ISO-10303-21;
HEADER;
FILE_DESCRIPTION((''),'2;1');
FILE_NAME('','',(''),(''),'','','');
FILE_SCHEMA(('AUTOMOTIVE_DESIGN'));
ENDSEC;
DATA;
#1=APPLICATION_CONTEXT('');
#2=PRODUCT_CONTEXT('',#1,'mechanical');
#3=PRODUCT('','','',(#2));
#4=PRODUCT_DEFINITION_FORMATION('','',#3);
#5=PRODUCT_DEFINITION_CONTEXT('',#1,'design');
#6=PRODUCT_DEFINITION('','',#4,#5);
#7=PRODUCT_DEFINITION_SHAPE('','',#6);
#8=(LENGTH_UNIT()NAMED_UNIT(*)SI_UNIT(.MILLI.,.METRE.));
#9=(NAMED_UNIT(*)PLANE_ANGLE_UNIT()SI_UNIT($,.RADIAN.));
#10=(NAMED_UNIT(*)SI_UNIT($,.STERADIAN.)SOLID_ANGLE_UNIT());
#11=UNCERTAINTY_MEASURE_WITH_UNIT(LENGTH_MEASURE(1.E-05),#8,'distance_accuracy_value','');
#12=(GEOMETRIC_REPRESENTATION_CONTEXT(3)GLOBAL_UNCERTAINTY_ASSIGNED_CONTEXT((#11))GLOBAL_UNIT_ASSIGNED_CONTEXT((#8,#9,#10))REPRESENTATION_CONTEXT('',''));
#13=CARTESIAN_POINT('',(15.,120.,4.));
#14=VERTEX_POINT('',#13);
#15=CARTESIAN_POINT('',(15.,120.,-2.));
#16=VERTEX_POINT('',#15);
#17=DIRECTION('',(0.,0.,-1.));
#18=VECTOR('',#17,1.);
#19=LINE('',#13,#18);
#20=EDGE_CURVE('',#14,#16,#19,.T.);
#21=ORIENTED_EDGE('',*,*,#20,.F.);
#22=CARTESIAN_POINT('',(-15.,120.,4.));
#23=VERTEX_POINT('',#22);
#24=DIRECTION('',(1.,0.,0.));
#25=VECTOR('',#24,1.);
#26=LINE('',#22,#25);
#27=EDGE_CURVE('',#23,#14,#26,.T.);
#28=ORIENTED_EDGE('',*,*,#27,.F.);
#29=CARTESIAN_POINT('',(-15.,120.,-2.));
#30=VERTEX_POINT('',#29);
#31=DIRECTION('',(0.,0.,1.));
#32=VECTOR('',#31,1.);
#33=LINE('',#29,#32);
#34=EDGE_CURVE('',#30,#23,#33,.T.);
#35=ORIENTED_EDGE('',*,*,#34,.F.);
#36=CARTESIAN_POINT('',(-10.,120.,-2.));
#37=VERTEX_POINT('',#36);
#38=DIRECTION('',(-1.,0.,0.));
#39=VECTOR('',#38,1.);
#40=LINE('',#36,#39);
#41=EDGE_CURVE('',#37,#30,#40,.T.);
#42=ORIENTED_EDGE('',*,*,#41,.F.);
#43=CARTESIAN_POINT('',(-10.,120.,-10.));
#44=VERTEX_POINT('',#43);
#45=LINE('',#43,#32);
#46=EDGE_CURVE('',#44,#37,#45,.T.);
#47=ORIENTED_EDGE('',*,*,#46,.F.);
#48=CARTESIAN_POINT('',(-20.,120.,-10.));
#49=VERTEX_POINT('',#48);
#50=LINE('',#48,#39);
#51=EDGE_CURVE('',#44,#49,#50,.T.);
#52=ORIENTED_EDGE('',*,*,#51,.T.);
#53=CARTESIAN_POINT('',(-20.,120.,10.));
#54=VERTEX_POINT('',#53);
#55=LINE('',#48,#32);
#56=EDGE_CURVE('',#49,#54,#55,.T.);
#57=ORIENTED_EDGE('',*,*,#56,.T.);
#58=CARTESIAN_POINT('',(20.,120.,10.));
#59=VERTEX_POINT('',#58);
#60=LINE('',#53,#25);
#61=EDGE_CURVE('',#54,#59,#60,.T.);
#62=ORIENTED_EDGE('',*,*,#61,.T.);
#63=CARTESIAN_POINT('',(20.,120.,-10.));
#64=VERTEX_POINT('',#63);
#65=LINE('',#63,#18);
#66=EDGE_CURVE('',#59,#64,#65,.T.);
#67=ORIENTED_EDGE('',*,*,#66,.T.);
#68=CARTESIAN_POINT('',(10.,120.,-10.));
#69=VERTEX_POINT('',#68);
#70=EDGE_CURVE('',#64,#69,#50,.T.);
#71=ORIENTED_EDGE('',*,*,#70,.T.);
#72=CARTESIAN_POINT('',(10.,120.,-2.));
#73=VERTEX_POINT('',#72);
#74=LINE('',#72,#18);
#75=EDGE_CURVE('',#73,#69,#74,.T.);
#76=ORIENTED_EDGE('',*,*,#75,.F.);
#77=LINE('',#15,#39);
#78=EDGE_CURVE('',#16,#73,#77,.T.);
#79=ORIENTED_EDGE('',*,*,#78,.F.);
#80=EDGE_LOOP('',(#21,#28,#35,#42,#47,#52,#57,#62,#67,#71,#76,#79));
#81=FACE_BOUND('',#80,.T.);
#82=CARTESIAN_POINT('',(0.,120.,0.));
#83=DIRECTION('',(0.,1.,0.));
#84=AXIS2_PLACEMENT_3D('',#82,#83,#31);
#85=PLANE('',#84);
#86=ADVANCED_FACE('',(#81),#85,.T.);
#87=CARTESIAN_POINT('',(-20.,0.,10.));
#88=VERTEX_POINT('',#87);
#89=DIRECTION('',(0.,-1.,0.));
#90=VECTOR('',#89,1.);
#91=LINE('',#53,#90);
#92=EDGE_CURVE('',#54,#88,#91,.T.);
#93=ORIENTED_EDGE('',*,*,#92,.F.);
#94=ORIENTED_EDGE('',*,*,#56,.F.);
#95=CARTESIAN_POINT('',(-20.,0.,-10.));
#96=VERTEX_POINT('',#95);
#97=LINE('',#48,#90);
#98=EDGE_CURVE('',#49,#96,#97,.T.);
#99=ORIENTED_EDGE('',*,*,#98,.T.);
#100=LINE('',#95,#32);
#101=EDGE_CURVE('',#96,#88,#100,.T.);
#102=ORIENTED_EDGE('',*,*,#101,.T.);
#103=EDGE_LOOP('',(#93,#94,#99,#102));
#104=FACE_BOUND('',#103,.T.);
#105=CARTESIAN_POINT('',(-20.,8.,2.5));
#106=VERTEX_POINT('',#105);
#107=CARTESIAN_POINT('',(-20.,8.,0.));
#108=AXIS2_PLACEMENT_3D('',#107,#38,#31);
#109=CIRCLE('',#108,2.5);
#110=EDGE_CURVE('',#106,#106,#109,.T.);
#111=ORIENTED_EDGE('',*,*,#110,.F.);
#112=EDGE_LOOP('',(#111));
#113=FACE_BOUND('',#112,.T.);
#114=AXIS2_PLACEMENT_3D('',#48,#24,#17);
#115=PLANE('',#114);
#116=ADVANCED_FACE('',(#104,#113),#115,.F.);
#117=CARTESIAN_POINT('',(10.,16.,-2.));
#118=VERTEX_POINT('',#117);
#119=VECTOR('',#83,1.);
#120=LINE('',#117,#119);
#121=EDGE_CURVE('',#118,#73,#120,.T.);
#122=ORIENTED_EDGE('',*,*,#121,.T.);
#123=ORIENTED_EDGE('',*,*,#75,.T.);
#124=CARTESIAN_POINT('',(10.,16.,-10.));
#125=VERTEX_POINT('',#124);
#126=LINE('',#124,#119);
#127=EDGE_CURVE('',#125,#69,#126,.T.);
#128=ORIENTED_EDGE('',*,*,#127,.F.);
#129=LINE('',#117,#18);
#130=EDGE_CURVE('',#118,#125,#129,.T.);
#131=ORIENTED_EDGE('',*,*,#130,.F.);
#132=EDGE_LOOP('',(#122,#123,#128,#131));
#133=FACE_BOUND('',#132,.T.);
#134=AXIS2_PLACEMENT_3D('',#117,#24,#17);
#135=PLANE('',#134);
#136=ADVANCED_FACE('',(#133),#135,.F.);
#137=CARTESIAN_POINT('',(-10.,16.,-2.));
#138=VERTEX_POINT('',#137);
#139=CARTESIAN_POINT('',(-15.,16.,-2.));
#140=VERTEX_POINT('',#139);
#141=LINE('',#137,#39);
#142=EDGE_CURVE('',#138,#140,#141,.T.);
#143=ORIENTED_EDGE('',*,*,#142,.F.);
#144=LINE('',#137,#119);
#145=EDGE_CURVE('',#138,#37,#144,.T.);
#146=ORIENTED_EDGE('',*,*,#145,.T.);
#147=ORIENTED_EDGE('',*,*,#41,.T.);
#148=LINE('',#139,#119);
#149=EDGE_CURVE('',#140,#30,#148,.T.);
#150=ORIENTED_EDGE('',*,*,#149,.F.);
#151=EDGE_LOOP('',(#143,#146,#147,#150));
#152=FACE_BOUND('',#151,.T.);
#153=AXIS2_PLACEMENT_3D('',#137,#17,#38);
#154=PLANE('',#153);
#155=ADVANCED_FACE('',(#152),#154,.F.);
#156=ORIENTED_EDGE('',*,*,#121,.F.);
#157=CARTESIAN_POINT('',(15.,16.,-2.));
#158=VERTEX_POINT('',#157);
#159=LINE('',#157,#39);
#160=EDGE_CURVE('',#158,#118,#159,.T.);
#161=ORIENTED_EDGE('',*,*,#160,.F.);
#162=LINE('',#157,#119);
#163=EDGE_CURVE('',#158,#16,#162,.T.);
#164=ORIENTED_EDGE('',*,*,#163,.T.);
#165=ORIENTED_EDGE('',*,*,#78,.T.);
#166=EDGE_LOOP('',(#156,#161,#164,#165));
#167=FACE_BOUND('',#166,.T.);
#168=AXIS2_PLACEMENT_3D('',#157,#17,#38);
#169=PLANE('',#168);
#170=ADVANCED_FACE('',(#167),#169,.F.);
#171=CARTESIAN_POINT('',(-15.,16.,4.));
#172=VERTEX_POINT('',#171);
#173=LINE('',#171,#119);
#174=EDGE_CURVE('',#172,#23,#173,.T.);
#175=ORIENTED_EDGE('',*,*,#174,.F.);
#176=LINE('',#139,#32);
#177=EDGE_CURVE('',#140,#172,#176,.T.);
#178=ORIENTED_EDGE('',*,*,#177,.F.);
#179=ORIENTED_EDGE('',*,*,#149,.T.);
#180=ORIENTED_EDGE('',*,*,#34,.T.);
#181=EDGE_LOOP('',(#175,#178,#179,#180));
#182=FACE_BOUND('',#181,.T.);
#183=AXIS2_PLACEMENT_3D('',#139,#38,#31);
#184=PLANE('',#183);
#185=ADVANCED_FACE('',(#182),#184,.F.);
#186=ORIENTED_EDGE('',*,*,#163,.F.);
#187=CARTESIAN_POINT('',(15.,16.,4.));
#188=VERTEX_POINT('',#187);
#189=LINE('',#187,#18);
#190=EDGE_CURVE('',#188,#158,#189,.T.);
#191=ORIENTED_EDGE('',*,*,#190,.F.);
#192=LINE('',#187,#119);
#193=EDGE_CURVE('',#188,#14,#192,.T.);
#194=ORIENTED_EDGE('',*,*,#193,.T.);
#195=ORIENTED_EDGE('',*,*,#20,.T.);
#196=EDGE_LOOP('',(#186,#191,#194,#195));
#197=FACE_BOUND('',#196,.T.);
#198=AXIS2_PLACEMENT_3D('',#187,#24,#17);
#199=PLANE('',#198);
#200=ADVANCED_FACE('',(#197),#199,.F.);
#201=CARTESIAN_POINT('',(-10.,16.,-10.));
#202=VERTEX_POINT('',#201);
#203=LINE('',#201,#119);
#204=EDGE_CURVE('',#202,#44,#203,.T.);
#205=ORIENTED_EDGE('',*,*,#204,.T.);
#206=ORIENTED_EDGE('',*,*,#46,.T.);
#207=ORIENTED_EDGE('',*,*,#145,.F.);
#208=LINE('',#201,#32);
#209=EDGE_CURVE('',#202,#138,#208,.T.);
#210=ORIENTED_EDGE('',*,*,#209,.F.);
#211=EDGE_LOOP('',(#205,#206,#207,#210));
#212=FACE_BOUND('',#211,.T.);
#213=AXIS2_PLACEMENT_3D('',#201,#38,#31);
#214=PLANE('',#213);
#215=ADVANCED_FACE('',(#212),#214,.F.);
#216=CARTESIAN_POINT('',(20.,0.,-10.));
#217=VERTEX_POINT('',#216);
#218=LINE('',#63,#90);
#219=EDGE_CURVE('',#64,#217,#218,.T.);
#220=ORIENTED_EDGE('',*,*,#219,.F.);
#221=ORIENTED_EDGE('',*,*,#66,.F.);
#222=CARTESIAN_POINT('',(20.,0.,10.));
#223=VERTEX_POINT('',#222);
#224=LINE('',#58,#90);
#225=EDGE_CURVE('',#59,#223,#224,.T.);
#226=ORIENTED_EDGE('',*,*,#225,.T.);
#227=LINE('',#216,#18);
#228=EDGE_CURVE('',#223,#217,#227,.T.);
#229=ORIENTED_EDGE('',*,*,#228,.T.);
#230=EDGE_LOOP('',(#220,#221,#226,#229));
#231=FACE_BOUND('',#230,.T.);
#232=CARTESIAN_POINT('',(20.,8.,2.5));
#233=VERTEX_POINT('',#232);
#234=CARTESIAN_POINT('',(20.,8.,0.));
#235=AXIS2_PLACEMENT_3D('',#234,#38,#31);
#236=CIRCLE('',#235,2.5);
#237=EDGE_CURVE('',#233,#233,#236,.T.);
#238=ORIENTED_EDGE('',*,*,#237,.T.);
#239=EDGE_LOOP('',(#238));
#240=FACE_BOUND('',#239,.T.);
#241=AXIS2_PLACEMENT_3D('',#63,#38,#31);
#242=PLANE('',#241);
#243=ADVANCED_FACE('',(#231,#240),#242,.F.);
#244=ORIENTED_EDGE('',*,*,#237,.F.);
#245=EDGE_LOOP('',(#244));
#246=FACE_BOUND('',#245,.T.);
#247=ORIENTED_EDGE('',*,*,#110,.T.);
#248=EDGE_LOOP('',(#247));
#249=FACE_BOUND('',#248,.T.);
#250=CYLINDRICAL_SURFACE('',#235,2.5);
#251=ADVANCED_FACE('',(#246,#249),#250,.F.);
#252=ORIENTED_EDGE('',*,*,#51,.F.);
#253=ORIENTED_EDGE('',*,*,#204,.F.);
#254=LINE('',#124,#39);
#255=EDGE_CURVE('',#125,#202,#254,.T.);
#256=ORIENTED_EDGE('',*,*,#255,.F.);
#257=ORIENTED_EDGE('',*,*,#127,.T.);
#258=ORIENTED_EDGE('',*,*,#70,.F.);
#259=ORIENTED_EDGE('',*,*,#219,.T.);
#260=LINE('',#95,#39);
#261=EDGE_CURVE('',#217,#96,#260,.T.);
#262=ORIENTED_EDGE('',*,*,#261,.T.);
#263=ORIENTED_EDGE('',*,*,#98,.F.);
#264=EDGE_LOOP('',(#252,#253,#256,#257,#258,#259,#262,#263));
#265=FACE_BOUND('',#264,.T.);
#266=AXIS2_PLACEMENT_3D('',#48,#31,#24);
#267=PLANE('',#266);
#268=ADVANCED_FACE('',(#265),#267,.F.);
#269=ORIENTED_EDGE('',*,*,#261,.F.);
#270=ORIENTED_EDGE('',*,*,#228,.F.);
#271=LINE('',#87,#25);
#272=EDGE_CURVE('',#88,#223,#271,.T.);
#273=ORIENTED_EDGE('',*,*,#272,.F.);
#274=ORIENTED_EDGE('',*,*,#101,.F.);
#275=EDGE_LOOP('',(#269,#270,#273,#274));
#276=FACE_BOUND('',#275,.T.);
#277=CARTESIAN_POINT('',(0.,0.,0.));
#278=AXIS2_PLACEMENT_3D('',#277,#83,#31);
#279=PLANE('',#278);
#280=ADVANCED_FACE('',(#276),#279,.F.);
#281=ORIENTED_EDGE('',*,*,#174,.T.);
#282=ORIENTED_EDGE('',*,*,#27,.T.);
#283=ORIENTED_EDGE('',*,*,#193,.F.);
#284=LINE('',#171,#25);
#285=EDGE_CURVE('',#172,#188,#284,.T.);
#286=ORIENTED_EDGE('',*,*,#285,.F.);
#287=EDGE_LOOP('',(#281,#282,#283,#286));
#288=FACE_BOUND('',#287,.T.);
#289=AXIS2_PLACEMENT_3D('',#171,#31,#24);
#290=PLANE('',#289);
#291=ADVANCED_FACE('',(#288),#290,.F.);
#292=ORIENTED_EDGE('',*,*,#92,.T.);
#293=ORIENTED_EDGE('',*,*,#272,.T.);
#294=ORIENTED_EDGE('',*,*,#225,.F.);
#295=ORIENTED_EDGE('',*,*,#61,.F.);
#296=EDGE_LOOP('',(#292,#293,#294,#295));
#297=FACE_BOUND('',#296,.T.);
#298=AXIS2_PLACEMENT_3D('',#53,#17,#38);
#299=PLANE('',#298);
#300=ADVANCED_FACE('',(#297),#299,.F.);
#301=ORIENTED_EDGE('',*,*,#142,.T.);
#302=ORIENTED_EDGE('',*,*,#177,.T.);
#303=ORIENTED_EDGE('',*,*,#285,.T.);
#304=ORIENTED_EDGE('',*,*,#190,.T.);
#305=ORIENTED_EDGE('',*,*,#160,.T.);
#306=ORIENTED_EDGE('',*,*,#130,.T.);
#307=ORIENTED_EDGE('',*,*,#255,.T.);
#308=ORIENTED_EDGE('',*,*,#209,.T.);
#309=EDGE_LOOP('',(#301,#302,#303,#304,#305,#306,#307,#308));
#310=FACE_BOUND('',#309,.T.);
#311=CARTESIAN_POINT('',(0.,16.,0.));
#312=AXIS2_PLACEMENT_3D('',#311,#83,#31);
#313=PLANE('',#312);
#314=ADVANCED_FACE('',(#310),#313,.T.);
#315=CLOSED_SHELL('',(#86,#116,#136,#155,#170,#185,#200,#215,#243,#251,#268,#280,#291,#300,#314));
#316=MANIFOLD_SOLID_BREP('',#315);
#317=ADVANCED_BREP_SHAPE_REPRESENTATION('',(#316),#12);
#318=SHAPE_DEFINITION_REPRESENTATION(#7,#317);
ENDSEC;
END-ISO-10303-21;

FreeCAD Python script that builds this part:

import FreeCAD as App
import Part
import Sketcher

V = App.Vector
Q = App.Units.Quantity

doc = App.newDocument("Part")
body = doc.addObject("PartDesign::Body", "Body")

# Sketch on XZ plane
sketch1 = body.newObject("Sketcher::SketchObject", "Sketch")
sketch1.AttachmentSupport = (doc.getObject("XZ_Plane"), [""])
sketch1.MapMode = "FlatFace"
sketch1.addGeometry(Part.LineSegment(V(-20, -10, 0), V(-20, 10, 0)), False)
sketch1.addGeometry(Part.LineSegment(V(-20, 10, 0), V(20, 10, 0)), False)
sketch1.addGeometry(Part.LineSegment(V(20, 10, 0), V(20, -10, 0)), False)
sketch1.addGeometry(Part.LineSegment(V(20, -10, 0), V(-20, -10, 0)), False)
sketch1.addConstraint(Sketcher.Constraint("Coincident", 0, 2, 1, 1))
sketch1.addConstraint(Sketcher.Constraint("Coincident", 1, 2, 2, 1))
sketch1.addConstraint(Sketcher.Constraint("Coincident", 2, 2, 3, 1))
sketch1.addConstraint(Sketcher.Constraint("Coincident", 3, 2, 0, 1))
sketch1.addConstraint(Sketcher.Constraint("Vertical", 0))
sketch1.addConstraint(Sketcher.Constraint("Horizontal", 1))
sketch1.addConstraint(Sketcher.Constraint("Vertical", 2))
sketch1.addConstraint(Sketcher.Constraint("Horizontal", 3))
sketch1.addConstraint(Sketcher.Constraint("Symmetric", 0, 2, 2, 2, -1, 1))
sketch1.addConstraint(Sketcher.Constraint("DistanceX", 1, 1, 1, 2, Q("40 mm")))
sketch1.addConstraint(Sketcher.Constraint("DistanceY", 0, 1, 0, 2, Q("20 mm")))
pad1 = body.newObject("PartDesign::Pad", "Pad")
pad1.Profile = sketch1
pad1.Length = 120
pad1.Reversed = True

# Sketch on YZ plane
sketch2 = body.newObject("Sketcher::SketchObject", "Sketch001")
sketch2.AttachmentSupport = (doc.getObject("YZ_Plane"), [""])
sketch2.MapMode = "FlatFace"
sketch2.AttachmentOffset = App.Placement(V(0, 0, -20), App.Rotation())
sketch2.addGeometry(Part.Circle(V(8, 0, 0), V(0, 0, 1), 2.5), False)
sketch2.addConstraint(Sketcher.Constraint("PointOnObject", 0, 3, -1))
sketch2.addConstraint(Sketcher.Constraint("Diameter", 0, Q("5 mm")))
sketch2.addConstraint(Sketcher.Constraint("DistanceX", -1, 1, 0, 3, Q("8 mm")))
pocket1 = body.newObject("PartDesign::Pocket", "Pocket")
pocket1.Profile = sketch2
pocket1.Type = "ThroughAll"
pocket1.Reversed = True

# Sketch on XZ plane
sketch3 = body.newObject("Sketcher::SketchObject", "Sketch002")
sketch3.AttachmentSupport = (doc.getObject("XZ_Plane"), [""])
sketch3.MapMode = "FlatFace"
sketch3.AttachmentOffset = App.Placement(V(0, 0, -120), App.Rotation())
sketch3.addGeometry(Part.LineSegment(V(-15, 4, 0), V(15, 4, 0)), False)
sketch3.addGeometry(Part.LineSegment(V(15, 4, 0), V(15, -2, 0)), False)
sketch3.addGeometry(Part.LineSegment(V(15, -2, 0), V(10, -2, 0)), False)
sketch3.addGeometry(Part.LineSegment(V(10, -2, 0), V(10, -10, 0)), False)
sketch3.addGeometry(Part.LineSegment(V(10, -10, 0), V(-10, -10, 0)), False)
sketch3.addGeometry(Part.LineSegment(V(-10, -10, 0), V(-10, -2, 0)), False)
sketch3.addGeometry(Part.LineSegment(V(-10, -2, 0), V(-15, -2, 0)), False)
sketch3.addGeometry(Part.LineSegment(V(-15, -2, 0), V(-15, 4, 0)), False)
sketch3.addConstraint(Sketcher.Constraint("Coincident", 0, 2, 1, 1))
sketch3.addConstraint(Sketcher.Constraint("Coincident", 1, 2, 2, 1))
sketch3.addConstraint(Sketcher.Constraint("Coincident", 2, 2, 3, 1))
sketch3.addConstraint(Sketcher.Constraint("Coincident", 3, 2, 4, 1))
sketch3.addConstraint(Sketcher.Constraint("Coincident", 4, 2, 5, 1))
sketch3.addConstraint(Sketcher.Constraint("Coincident", 5, 2, 6, 1))
sketch3.addConstraint(Sketcher.Constraint("Coincident", 6, 2, 7, 1))
sketch3.addConstraint(Sketcher.Constraint("Coincident", 7, 2, 0, 1))
sketch3.addConstraint(Sketcher.Constraint("Horizontal", 0))
sketch3.addConstraint(Sketcher.Constraint("Vertical", 1))
sketch3.addConstraint(Sketcher.Constraint("Horizontal", 2))
sketch3.addConstraint(Sketcher.Constraint("Vertical", 3))
sketch3.addConstraint(Sketcher.Constraint("Horizontal", 4))
sketch3.addConstraint(Sketcher.Constraint("Vertical", 5))
sketch3.addConstraint(Sketcher.Constraint("Horizontal", 6))
sketch3.addConstraint(Sketcher.Constraint("Vertical", 7))
sketch3.addConstraint(Sketcher.Constraint("Symmetric", 2, 2, 5, 2, -2))
sketch3.addConstraint(Sketcher.Constraint("Equal", 2, 6))
sketch3.addConstraint(Sketcher.Constraint("DistanceX", 0, 1, 0, 2, Q("30 mm")))
sketch3.addConstraint(Sketcher.Constraint("DistanceX", 2, 2, 2, 1, Q("5 mm")))
sketch3.addConstraint(Sketcher.Constraint("DistanceY", 1, 2, 1, 1, Q("6 mm")))
sketch3.addConstraint(Sketcher.Constraint("DistanceY", 3, 2, 3, 1, Q("8 mm")))
sketch3.addConstraint(Sketcher.Constraint("DistanceY", -1, 1, 0, 2, Q("4 mm")))
pocket2 = body.newObject("PartDesign::Pocket", "Pocket001")
pocket2.Profile = sketch3
pocket2.Length = 104
pocket2.Reversed = True

doc.recompute()
